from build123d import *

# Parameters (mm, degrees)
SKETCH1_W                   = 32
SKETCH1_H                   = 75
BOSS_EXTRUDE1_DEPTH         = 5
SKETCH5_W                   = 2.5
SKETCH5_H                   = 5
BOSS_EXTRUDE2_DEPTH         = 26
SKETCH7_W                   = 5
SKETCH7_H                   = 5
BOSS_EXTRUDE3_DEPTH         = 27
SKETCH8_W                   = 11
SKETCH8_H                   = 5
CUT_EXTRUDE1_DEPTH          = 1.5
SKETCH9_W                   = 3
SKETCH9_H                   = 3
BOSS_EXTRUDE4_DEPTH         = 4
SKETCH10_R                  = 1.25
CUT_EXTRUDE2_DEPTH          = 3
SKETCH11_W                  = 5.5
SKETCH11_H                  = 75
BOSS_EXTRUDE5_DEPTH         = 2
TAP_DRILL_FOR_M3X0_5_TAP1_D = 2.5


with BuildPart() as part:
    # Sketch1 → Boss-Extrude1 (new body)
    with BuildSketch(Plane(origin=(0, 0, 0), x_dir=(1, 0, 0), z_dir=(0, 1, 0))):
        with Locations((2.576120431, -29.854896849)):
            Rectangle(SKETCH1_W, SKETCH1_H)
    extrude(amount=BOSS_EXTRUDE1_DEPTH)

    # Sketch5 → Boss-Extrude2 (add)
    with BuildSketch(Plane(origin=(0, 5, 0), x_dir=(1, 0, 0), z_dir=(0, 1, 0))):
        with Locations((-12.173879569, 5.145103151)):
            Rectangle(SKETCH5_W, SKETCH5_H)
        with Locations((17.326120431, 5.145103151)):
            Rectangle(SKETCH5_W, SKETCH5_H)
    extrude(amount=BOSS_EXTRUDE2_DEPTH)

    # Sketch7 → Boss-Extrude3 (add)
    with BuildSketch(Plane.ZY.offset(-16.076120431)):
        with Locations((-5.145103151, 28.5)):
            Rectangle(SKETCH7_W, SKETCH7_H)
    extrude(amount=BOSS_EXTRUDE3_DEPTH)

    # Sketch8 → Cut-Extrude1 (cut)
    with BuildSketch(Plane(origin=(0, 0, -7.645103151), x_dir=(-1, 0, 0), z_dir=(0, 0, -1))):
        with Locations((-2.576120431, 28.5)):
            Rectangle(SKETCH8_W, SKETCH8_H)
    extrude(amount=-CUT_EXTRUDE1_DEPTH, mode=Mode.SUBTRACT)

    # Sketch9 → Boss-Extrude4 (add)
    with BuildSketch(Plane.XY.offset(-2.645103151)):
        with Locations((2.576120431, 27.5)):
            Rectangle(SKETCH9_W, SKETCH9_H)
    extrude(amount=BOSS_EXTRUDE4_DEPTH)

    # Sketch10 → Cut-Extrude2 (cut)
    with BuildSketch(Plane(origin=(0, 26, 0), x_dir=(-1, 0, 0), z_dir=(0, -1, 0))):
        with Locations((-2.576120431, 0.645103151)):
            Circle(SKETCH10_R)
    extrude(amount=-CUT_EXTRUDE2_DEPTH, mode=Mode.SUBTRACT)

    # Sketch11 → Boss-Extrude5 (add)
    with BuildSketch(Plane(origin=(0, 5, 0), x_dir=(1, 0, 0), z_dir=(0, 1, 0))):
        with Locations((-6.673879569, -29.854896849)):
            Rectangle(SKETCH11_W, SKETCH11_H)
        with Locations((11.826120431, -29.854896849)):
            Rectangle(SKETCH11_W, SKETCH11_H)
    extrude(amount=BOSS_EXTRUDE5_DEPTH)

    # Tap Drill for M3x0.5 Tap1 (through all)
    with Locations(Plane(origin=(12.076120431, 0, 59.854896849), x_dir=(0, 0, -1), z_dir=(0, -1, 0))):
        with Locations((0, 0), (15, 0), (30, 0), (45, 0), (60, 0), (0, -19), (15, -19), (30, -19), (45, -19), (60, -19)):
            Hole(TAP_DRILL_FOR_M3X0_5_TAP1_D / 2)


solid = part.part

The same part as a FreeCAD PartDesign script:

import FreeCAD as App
import Part
import Sketcher
from FreeCAD import Vector


def add_polygon(sketch, points):
    """Adds a closed chain of lines whose ends are joined by coincident constraints."""
    first, n = sketch.GeometryCount, len(points)
    for a, b in zip(points, points[1:] + points[:1]):
        sketch.addGeometry(Part.LineSegment(App.Vector(*a, 0), App.Vector(*b, 0)), False)
    for i in range(n):
        sketch.addConstraint(Sketcher.Constraint("Coincident", first + i, 2, first + (i + 1) % n, 1))

doc = App.newDocument("Part")
body = doc.addObject("PartDesign::Body", "Body")

# Sketch on XZ plane
sketch1 = body.newObject("Sketcher::SketchObject", "Sketch")
sketch1.AttachmentSupport = (doc.getObject("XZ_Plane"), [""])
sketch1.MapMode = "FlatFace"
add_polygon(sketch1, [(-13, -8), (-13, 67), (19, 67), (19, -8)])  # lines 0-3
sketch1.addConstraint(Sketcher.Constraint("Vertical", 0))
sketch1.addConstraint(Sketcher.Constraint("Horizontal", 1))
sketch1.addConstraint(Sketcher.Constraint("Vertical", 2))
sketch1.addConstraint(Sketcher.Constraint("Horizontal", 3))
sketch1.addConstraint(Sketcher.Constraint("DistanceX", 1, 1, 1, 2, 32.0))
sketch1.addConstraint(Sketcher.Constraint("DistanceY", 0, 1, 0, 2, 75.0))
sketch1.addConstraint(Sketcher.Constraint("DistanceX", 0, 2, -1, 1, 13.42388))
sketch1.addConstraint(Sketcher.Constraint("DistanceY", -1, 1, 0, 2, 67.354897))
pad1 = body.newObject("PartDesign::Pad", "Pad")
pad1.Profile = sketch1
pad1.Length = 5
pad1.Reversed = True

# Sketch on XZ plane
sketch2 = body.newObject("Sketcher::SketchObject", "Sketch001")
sketch2.AttachmentSupport = (doc.getObject("XZ_Plane"), [""])
sketch2.MapMode = "FlatFace"
sketch2.AttachmentOffset = App.Placement(Vector(0, 0, -5), App.Rotation())
add_polygon(sketch2, [(-13.4, -7.6), (-13.4, -2.6), (-10.9, -2.6), (-10.9, -7.6)])  # lines 0-3
add_polygon(sketch2, [(16.1, -7.6), (16.1, -2.6), (18.6, -2.6), (18.6, -7.6)])  # lines 4-7
sketch2.addConstraint(Sketcher.Constraint("Vertical", 0))
sketch2.addConstraint(Sketcher.Constraint("Horizontal", 1))
sketch2.addConstraint(Sketcher.Constraint("Vertical", 2))
sketch2.addConstraint(Sketcher.Constraint("Horizontal", 3))
sketch2.addConstraint(Sketcher.Constraint("Vertical", 4))
sketch2.addConstraint(Sketcher.Constraint("Horizontal", 5))
sketch2.addConstraint(Sketcher.Constraint("Vertical", 6))
sketch2.addConstraint(Sketcher.Constraint("Horizontal", 7))
sketch2.addConstraint(Sketcher.Constraint("Horizontal", 1, 2, 4, 2))
sketch2.addConstraint(Sketcher.Constraint("Horizontal", 3, 2, 6, 2))
sketch2.addConstraint(Sketcher.Constraint("Equal", 3, 5))
sketch2.addConstraint(Sketcher.Constraint("DistanceY", 0, 1, 0, 2, 5.0))
sketch2.addConstraint(Sketcher.Constraint("DistanceX", 1, 1, 1, 2, 2.5))
sketch2.addConstraint(Sketcher.Constraint("DistanceX", 1, 2, 4, 2, 27.0))
sketch2.addConstraint(Sketcher.Constraint("DistanceX", 0, 2, -1, 1, 13.42388))
sketch2.addConstraint(Sketcher.Constraint("DistanceY", 0, 2, -1, 1, 2.645103))
pad2 = body.newObject("PartDesign::Pad", "Pad001")
pad2.Profile = sketch2
pad2.Length = 26
pad2.Reversed = True

# Sketch on YZ plane
sketch3 = body.newObject("Sketcher::SketchObject", "Sketch002")
sketch3.AttachmentSupport = (doc.getObject("YZ_Plane"), [""])
sketch3.MapMode = "FlatFace"
sketch3.AttachmentOffset = App.Placement(Vector(0, 0, 16.07612), App.Rotation())
add_polygon(sketch3, [(31, -8), (26, -8), (26, -3), (31, -3)])  # lines 0-3
sketch3.addConstraint(Sketcher.Constraint("Horizontal", 0))
sketch3.addConstraint(Sketcher.Constraint("Vertical", 1))
sketch3.addConstraint(Sketcher.Constraint("Horizontal", 2))
sketch3.addConstraint(Sketcher.Constraint("Vertical", 3))
sketch3.addConstraint(Sketcher.Constraint("Equal", 2, 1))
sketch3.addConstraint(Sketcher.Constraint("DistanceX", 0, 2, 0, 1, 5.0))
sketch3.addConstraint(Sketcher.Constraint("DistanceX", -1, 1, 0, 2, 26.0))
sketch3.addConstraint(Sketcher.Constraint("DistanceY", 0, 2, -1, 1, 7.645103))
pad3 = body.newObject("PartDesign::Pad", "Pad002")
pad3.Profile = sketch3
pad3.Length = 27
pad3.Reversed = True

# Sketch on XY plane
sketch4 = body.newObject("Sketcher::SketchObject", "Sketch003")
sketch4.AttachmentSupport = (doc.getObject("XY_Plane"), [""])
sketch4.MapMode = "FlatFace"
sketch4.AttachmentOffset = App.Placement(Vector(0, 0, -7.645103), App.Rotation())
add_polygon(sketch4, [(8, 31), (8, 26), (-3, 26), (-3, 31)])  # lines 0-3
sketch4.addConstraint(Sketcher.Constraint("Vertical", 0))
sketch4.addConstraint(Sketcher.Constraint("Horizontal", 1))
sketch4.addConstraint(Sketcher.Constraint("Vertical", 2))
sketch4.addConstraint(Sketcher.Constraint("Horizontal", 3))
sketch4.addConstraint(Sketcher.Constraint("DistanceX", 1, 2, 1, 1, 11.0))
sketch4.addConstraint(Sketcher.Constraint("DistanceY", 0, 2, 0, 1, 5.0))
sketch4.addConstraint(Sketcher.Constraint("DistanceY", -1, 1, 0, 2, 26.0))
sketch4.addConstraint(Sketcher.Constraint("DistanceX", -1, 1, 0, 2, 8.07612))
pocket1 = body.newObject("PartDesign::Pocket", "Pocket")
pocket1.Profile = sketch4
pocket1.Length = 1.5
pocket1.Reversed = True

# Sketch on XY plane
sketch5 = body.newObject("Sketcher::SketchObject", "Sketch004")
sketch5.AttachmentSupport = (doc.getObject("XY_Plane"), [""])
sketch5.MapMode = "FlatFace"
sketch5.AttachmentOffset = App.Placement(Vector(0, 0, -2.645103), App.Rotation())
add_polygon(sketch5, [(1.1, 29), (1.1, 26), (4.1, 26), (4.1, 29)])  # lines 0-3
sketch5.addConstraint(Sketcher.Constraint("Vertical", 0))
sketch5.addConstraint(Sketcher.Constraint("Horizontal", 1))
sketch5.addConstraint(Sketcher.Constraint("Vertical", 2))
sketch5.addConstraint(Sketcher.Constraint("Horizontal", 3))
sketch5.addConstraint(Sketcher.Constraint("Equal", 3, 0))
sketch5.addConstraint(Sketcher.Constraint("DistanceX", 1, 1, 1, 2, 3.0))
sketch5.addConstraint(Sketcher.Constraint("DistanceY", -1, 1, 0, 2, 26.0))
sketch5.addConstraint(Sketcher.Constraint("DistanceX", -1, 1, 0, 2, 1.07612))
pad4 = body.newObject("PartDesign::Pad", "Pad003")
pad4.Profile = sketch5
pad4.Length = 4

# Sketch on XZ plane
sketch6 = body.newObject("Sketcher::SketchObject", "Sketch005")
sketch6.AttachmentSupport = (doc.getObject("XZ_Plane"), [""])
sketch6.MapMode = "FlatFace"
sketch6.AttachmentOffset = App.Placement(Vector(0, 0, -26), App.Rotation())
sketch6.addGeometry(Part.Circle(Vector(2.6, -0.6, 0), Vector(0, 0, 1), 1.2), False)
sketch6.addConstraint(Sketcher.Constraint("Diameter", 0, 2.5))
sketch6.addConstraint(Sketcher.Constraint("DistanceX", -1, 1, 0, 3, 2.57612))
sketch6.addConstraint(Sketcher.Constraint("DistanceY", 0, 3, -1, 1, 0.645103))
pocket2 = body.newObject("PartDesign::Pocket", "Pocket001")
pocket2.Profile = sketch6
pocket2.Length = 3

# Sketch on XZ plane
sketch7 = body.newObject("Sketcher::SketchObject", "Sketch006")
sketch7.AttachmentSupport = (doc.getObject("XZ_Plane"), [""])
sketch7.MapMode = "FlatFace"
sketch7.AttachmentOffset = App.Placement(Vector(0, 0, -5), App.Rotation())
add_polygon(sketch7, [(-9, -8), (-9, 67), (-4, 67), (-4, -8)])  # lines 0-3
add_polygon(sketch7, [(9, -8), (9, 67), (15, 67), (15, -8)])  # lines 4-7
sketch7.addConstraint(Sketcher.Constraint("Vertical", 0))
sketch7.addConstraint(Sketcher.Constraint("Horizontal", 1))
sketch7.addConstraint(Sketcher.Constraint("Vertical", 2))
sketch7.addConstraint(Sketcher.Constraint("Horizontal", 3))
sketch7.addConstraint(Sketcher.Constraint("Vertical", 4))
sketch7.addConstraint(Sketcher.Constraint("Horizontal", 5))
sketch7.addConstraint(Sketcher.Constraint("Vertical", 6))
sketch7.addConstraint(Sketcher.Constraint("Horizontal", 7))
sketch7.addConstraint(Sketcher.Constraint("Horizontal", 1, 2, 4, 2))
sketch7.addConstraint(Sketcher.Constraint("Horizontal", 3, 2, 6, 2))
sketch7.addConstraint(Sketcher.Constraint("Equal", 3, 5))
sketch7.addConstraint(Sketcher.Constraint("DistanceY", 0, 1, 0, 2, 75.0))
sketch7.addConstraint(Sketcher.Constraint("DistanceX", 1, 1, 1, 2, 5.5))
sketch7.addConstraint(Sketcher.Constraint("DistanceX", 1, 2, 4, 2, 13.0))
sketch7.addConstraint(Sketcher.Constraint("DistanceX", 0, 2, -1, 1, 9.42388))
sketch7.addConstraint(Sketcher.Constraint("DistanceY", -1, 1, 0, 2, 67.354897))
pad5 = body.newObject("PartDesign::Pad", "Pad004")
pad5.Profile = sketch7
pad5.Length = 2
pad5.Reversed = True

# Sketch on XZ plane
sketch8 = body.newObject("Sketcher::SketchObject", "Sketch007")
sketch8.AttachmentSupport = (doc.getObject("XZ_Plane"), [""])
sketch8.MapMode = "FlatFace"
sketch8.addGeometry(Part.Circle(Vector(12.1, 59.9, 0), Vector(0, 0, 1), 1.2), False)
sketch8.addGeometry(Part.Circle(Vector(12.1, 44.9, 0), Vector(0, 0, 1), 1.2), False)
sketch8.addGeometry(Part.Circle(Vector(12.1, 29.9, 0), Vector(0, 0, 1), 1.2), False)
sketch8.addGeometry(Part.Circle(Vector(12.1, 14.9, 0), Vector(0, 0, 1), 1.2), False)
sketch8.addGeometry(Part.Circle(Vector(12.1, -0.1, 0), Vector(0, 0, 1), 1.2), False)
sketch8.addGeometry(Part.Circle(Vector(-6.9, 59.9, 0), Vector(0, 0, 1), 1.2), False)
sketch8.addGeometry(Part.Circle(Vector(-6.9, 44.9, 0), Vector(0, 0, 1), 1.2), False)
sketch8.addGeometry(Part.Circle(Vector(-6.9, 29.9, 0), Vector(0, 0, 1), 1.2), False)
sketch8.addGeometry(Part.Circle(Vector(-6.9, 14.9, 0), Vector(0, 0, 1), 1.2), False)
sketch8.addGeometry(Part.Circle(Vector(-6.9, -0.1, 0), Vector(0, 0, 1), 1.2), False)
sketch8.addConstraint(Sketcher.Constraint("Equal", 0, 1))
sketch8.addConstraint(Sketcher.Constraint("Equal", 1, 2))
sketch8.addConstraint(Sketcher.Constraint("Equal", 2, 3))
sketch8.addConstraint(Sketcher.Constraint("Equal", 3, 4))
sketch8.addConstraint(Sketcher.Constraint("Equal", 4, 5))
sketch8.addConstraint(Sketcher.Constraint("Equal", 5, 6))
sketch8.addConstraint(Sketcher.Constraint("Equal", 6, 7))
sketch8.addConstraint(Sketcher.Constraint("Equal", 7, 8))
sketch8.addConstraint(Sketcher.Constraint("Equal", 8, 9))
sketch8.addConstraint(Sketcher.Constraint("Horizontal", 0, 3, 5, 3))
sketch8.addConstraint(Sketcher.Constraint("Horizontal", 1, 3, 6, 3))
sketch8.addConstraint(Sketcher.Constraint("Horizontal", 2, 3, 7, 3))
sketch8.addConstraint(Sketcher.Constraint("Horizontal", 3, 3, 8, 3))
sketch8.addConstraint(Sketcher.Constraint("Horizontal", 4, 3, 9, 3))
sketch8.addConstraint(Sketcher.Constraint("Vertical", 0, 3, 1, 3))
sketch8.addConstraint(Sketcher.Constraint("Vertical", 1, 3, 2, 3))
sketch8.addConstraint(Sketcher.Constraint("Vertical", 2, 3, 3, 3))
sketch8.addConstraint(Sketcher.Constraint("Vertical", 3, 3, 4, 3))
sketch8.addConstraint(Sketcher.Constraint("Vertical", 5, 3, 6, 3))
sketch8.addConstraint(Sketcher.Constraint("Vertical", 6, 3, 7, 3))
sketch8.addConstraint(Sketcher.Constraint("Vertical", 7, 3, 8, 3))
sketch8.addConstraint(Sketcher.Constraint("Vertical", 8, 3, 9, 3))
sketch8.addConstraint(Sketcher.Constraint("Diameter", 0, 2.5))
sketch8.addConstraint(Sketcher.Constraint("DistanceY", 1, 3, 0, 3, 15.0))
sketch8.addConstraint(Sketcher.Constraint("DistanceY", 2, 3, 1, 3, 15.0))
sketch8.addConstraint(Sketcher.Constraint("DistanceY", 3, 3, 2, 3, 15.0))
sketch8.addConstraint(Sketcher.Constraint("DistanceY", 4, 3, 3, 3, 15.0))
sketch8.addConstraint(Sketcher.Constraint("DistanceX", 5, 3, 0, 3, 19.0))
sketch8.addConstraint(Sketcher.Constraint("DistanceX", -1, 1, 0, 3, 12.07612))
sketch8.addConstraint(Sketcher.Constraint("DistanceY", -1, 1, 0, 3, 59.854897))
doc.recompute()
hole = body.newObject("PartDesign::Hole", "Hole")
hole.Profile = sketch8
hole.ThreadType = "None"
hole.Diameter = 2.5
hole.DepthType = "ThroughAll"

doc.recompute()
